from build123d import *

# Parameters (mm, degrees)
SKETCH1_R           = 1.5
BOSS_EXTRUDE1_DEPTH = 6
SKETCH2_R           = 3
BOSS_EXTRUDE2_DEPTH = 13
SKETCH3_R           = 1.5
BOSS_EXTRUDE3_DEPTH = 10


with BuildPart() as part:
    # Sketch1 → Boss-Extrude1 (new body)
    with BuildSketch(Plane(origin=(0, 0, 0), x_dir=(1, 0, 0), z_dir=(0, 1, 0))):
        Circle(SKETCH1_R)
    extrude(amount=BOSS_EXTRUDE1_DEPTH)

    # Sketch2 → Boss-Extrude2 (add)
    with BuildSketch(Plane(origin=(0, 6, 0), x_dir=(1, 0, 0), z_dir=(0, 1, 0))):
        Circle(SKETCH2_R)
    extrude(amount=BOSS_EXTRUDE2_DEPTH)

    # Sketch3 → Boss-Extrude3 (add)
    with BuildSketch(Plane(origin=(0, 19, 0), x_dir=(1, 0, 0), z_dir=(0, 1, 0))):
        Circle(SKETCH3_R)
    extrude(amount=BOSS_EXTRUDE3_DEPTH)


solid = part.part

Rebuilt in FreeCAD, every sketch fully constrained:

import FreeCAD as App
import Part
import Sketcher

V = App.Vector

doc = App.newDocument("Part")
params = doc.addObject("Spreadsheet::Sheet", "Params")
for row, (alias, value) in enumerate([
    ("sketch1_diameter", "3 mm"),
    ("pad1_length", "6 mm"),
    ("sketch2_diameter", "6 mm"),
    ("pad2_length", "13 mm"),
    ("sketch3_diameter", "3 mm"),
    ("pad3_length", "10 mm"),
], start=1):
    params.set(f"A{row}", alias)
    params.set(f"B{row}", "=" + value)
    params.setAlias(f"B{row}", alias)

body = doc.addObject("PartDesign::Body", "Body")

# Sketch on XZ plane
sketch1 = body.newObject("Sketcher::SketchObject", "Sketch")
sketch1.AttachmentSupport = (doc.getObject("XZ_Plane"), [""])
sketch1.MapMode = "FlatFace"
sketch1.addGeometry(Part.Circle(V(0, 0, 0), V(0, 0, 1), 1.5), False)
sketch1.addConstraint([
    Sketcher.Constraint("Coincident", 0, 3, -1, 1),
    Sketcher.Constraint("Diameter", 0, 3.0),
])
sketch1.setExpression("Constraints[1]", "Params.sketch1_diameter")
pad1 = body.newObject("PartDesign::Pad", "Pad")
pad1.Profile = sketch1
pad1.setExpression("Length", "Params.pad1_length")
pad1.Reversed = True

# Sketch on XZ plane
sketch2 = body.newObject("Sketcher::SketchObject", "Sketch001")
sketch2.AttachmentSupport = (doc.getObject("XZ_Plane"), [""])
sketch2.MapMode = "FlatFace"
sketch2.AttachmentOffset = App.Placement(V(0, 0, -6), App.Rotation())
sketch2.addGeometry(Part.Circle(V(0, 0, 0), V(0, 0, 1), 3), False)
sketch2.addConstraint([
    Sketcher.Constraint("Coincident", 0, 3, -1, 1),
    Sketcher.Constraint("Diameter", 0, 6.0),
])
sketch2.setExpression("Constraints[1]", "Params.sketch2_diameter")
pad2 = body.newObject("PartDesign::Pad", "Pad001")
pad2.Profile = sketch2
pad2.setExpression("Length", "Params.pad2_length")
pad2.Reversed = True

# Sketch on XZ plane
sketch3 = body.newObject("Sketcher::SketchObject", "Sketch002")
sketch3.AttachmentSupport = (doc.getObject("XZ_Plane"), [""])
sketch3.MapMode = "FlatFace"
sketch3.AttachmentOffset = App.Placement(V(0, 0, -19), App.Rotation())
sketch3.addGeometry(Part.Circle(V(0, 0, 0), V(0, 0, 1), 1.5), False)
sketch3.addConstraint([
    Sketcher.Constraint("Coincident", 0, 3, -1, 1),
    Sketcher.Constraint("Diameter", 0, 3.0),
])
sketch3.setExpression("Constraints[1]", "Params.sketch3_diameter")
pad3 = body.newObject("PartDesign::Pad", "Pad002")
pad3.Profile = sketch3
pad3.setExpression("Length", "Params.pad3_length")
pad3.Reversed = True

doc.recompute()
